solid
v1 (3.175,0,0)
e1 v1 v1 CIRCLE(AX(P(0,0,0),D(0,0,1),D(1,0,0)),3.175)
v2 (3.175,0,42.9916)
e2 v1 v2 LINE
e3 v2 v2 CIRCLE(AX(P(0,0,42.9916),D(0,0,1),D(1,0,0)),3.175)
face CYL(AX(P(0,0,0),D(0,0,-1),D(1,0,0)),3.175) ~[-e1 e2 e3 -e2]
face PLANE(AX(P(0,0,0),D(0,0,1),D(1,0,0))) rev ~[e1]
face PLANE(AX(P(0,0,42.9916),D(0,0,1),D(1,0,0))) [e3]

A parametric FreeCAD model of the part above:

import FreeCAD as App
import Part
import Sketcher
from FreeCAD import Vector
Q = App.Units.Quantity

doc = App.newDocument("Part")
body = doc.addObject("PartDesign::Body", "Body")

# Sketch on XY plane
sketch1 = body.newObject("Sketcher::SketchObject", "Sketch")
sketch1.AttachmentSupport = (doc.getObject("XY_Plane"), [""])
sketch1.MapMode = "FlatFace"
sketch1.addGeometry(Part.Circle(Vector(0, 0, 0), Vector(0, 0, 1), 3.2), False)
sketch1.addConstraint([
    Sketcher.Constraint("Coincident", 0, 3, -1, 1),
    Sketcher.Constraint("Diameter", 0, Q("0.25 in")),
])
pad1 = body.newObject("PartDesign::Pad", "Pad")
pad1.Profile = sketch1
pad1.Length = 42.9916

doc.recompute()
